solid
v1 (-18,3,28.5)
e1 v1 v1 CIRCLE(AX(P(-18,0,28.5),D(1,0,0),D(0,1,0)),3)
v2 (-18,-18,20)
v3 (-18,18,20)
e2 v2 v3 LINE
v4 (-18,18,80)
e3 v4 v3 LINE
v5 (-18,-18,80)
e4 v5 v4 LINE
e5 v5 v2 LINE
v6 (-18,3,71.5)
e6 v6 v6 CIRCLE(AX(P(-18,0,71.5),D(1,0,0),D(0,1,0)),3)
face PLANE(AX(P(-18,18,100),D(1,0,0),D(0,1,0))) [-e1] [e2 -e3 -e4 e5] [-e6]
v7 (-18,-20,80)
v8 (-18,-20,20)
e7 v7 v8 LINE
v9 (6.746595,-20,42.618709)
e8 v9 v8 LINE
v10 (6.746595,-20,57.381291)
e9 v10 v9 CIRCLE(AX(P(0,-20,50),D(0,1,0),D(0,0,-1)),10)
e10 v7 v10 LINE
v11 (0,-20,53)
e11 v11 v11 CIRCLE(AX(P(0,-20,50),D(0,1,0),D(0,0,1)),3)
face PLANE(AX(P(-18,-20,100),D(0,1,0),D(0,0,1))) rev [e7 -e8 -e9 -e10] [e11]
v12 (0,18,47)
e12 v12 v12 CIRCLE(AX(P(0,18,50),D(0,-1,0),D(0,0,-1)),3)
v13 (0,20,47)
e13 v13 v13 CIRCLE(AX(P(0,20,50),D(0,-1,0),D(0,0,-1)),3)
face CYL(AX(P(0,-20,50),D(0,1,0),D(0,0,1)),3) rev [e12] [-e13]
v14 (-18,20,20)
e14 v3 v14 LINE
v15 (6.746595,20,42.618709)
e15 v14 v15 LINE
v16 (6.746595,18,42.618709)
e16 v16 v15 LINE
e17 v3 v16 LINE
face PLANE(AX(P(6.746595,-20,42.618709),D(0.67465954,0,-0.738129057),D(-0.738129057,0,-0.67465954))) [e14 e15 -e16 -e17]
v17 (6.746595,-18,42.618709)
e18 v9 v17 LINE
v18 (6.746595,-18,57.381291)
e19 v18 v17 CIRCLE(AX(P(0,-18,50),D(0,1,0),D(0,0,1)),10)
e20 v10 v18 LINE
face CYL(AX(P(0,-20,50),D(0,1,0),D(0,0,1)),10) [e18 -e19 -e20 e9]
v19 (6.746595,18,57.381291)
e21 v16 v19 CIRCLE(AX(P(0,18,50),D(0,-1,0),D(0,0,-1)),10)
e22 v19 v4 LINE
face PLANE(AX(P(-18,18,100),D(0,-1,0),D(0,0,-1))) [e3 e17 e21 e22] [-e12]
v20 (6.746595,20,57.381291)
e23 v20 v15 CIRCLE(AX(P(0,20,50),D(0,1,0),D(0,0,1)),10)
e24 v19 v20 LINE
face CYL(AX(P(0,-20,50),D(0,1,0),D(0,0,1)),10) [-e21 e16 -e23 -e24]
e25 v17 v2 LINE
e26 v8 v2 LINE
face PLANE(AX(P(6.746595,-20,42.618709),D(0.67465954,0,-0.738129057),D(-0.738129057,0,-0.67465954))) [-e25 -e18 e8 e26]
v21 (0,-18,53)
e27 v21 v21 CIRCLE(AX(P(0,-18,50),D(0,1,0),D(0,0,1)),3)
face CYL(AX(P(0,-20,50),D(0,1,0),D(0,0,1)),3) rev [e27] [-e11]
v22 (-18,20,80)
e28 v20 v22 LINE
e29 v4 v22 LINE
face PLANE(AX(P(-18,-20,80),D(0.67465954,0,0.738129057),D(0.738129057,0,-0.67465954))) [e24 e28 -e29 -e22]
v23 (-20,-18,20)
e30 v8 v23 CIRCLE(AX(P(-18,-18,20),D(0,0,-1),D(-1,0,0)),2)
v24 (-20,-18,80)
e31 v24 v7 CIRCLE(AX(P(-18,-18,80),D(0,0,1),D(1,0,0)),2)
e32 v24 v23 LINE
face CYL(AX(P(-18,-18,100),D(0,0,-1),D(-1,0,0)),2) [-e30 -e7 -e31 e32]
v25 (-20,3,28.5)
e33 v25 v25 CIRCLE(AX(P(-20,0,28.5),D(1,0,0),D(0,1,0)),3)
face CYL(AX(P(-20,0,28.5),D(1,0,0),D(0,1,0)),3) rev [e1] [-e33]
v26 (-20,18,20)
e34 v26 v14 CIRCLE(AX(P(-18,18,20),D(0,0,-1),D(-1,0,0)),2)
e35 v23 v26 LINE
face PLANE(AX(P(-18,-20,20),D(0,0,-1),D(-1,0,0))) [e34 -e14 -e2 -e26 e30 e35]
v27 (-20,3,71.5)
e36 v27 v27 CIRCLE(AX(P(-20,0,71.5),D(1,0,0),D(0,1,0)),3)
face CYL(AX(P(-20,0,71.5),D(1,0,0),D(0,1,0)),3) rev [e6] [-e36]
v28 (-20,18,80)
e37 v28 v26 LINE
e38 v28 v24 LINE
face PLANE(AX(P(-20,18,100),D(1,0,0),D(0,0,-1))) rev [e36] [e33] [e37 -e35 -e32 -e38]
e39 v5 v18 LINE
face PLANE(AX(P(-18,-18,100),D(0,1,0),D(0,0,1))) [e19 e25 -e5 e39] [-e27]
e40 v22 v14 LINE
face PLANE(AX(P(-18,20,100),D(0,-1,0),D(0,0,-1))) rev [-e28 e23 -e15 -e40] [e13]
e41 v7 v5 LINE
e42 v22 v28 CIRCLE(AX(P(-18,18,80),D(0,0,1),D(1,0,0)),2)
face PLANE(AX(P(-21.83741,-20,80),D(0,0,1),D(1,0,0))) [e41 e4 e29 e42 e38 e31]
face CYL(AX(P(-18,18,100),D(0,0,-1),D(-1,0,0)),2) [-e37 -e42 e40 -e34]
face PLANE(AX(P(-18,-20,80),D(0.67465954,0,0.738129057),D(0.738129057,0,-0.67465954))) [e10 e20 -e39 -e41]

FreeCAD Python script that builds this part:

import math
import FreeCAD as App
import Part
import Sketcher
Q = App.Units.Quantity


def add_polygon(sketch, points):
    """Adds a closed chain of lines whose ends are joined by coincident constraints."""
    first, n = sketch.GeometryCount, len(points)
    for a, b in zip(points, points[1:] + points[:1]):
        sketch.addGeometry(Part.LineSegment(App.Vector(*a, 0), App.Vector(*b, 0)), False)
    for i in range(n):
        sketch.addConstraint(Sketcher.Constraint("Coincident", first + i, 2, first + (i + 1) % n, 1))

doc = App.newDocument("Part")
body = doc.addObject("PartDesign::Body", "Body")

sketch1 = body.newObject("Sketcher::SketchObject", "Sketch")
sketch1.AttachmentSupport = (doc.getObject("XY_Plane"), [""])
sketch1.MapMode = "FlatFace"
sketch1.addGeometry(Part.LineSegment(App.Vector(18, 20, 0), App.Vector(-18, 20, 0)), False)
sketch1.addGeometry(Part.ArcOfCircle(Part.Circle(App.Vector(-18, 18, 0), App.Vector(0, 0, 1), 2), math.radians(90), math.radians(180)), False)
sketch1.addGeometry(Part.LineSegment(App.Vector(-20, 18, 0), App.Vector(-20, -18, 0)), False)
sketch1.addGeometry(Part.ArcOfCircle(Part.Circle(App.Vector(-18, -18, 0), App.Vector(0, 0, 1), 2), math.radians(-180), math.radians(-90)), False)
sketch1.addGeometry(Part.LineSegment(App.Vector(-18, -20, 0), App.Vector(18, -20, 0)), False)
sketch1.addGeometry(Part.ArcOfCircle(Part.Circle(App.Vector(18, -18, 0), App.Vector(0, 0, 1), 2), math.radians(-90), math.radians(0)), False)
sketch1.addGeometry(Part.LineSegment(App.Vector(20, -18, 0), App.Vector(20, 18, 0)), False)
sketch1.addGeometry(Part.ArcOfCircle(Part.Circle(App.Vector(18, 18, 0), App.Vector(0, 0, 1), 2), math.radians(0), math.radians(90)), False)
add_polygon(sketch1, [(-18, -18), (-18, 18), (18, 18), (18, -18)])
sketch1.addConstraint([
    Sketcher.Constraint("Tangent", 0, 2, 1, 1),
    Sketcher.Constraint("Tangent", 1, 2, 2, 1),
    Sketcher.Constraint("Tangent", 2, 2, 3, 1),
    Sketcher.Constraint("Tangent", 3, 2, 4, 1),
    Sketcher.Constraint("Tangent", 4, 2, 5, 1),
    Sketcher.Constraint("Tangent", 5, 2, 6, 1),
    Sketcher.Constraint("Tangent", 6, 2, 7, 1),
    Sketcher.Constraint("Tangent", 7, 2, 0, 1),
    Sketcher.Constraint("Horizontal", 0),
    Sketcher.Constraint("Vertical", 2),
    Sketcher.Constraint("Horizontal", 4),
    Sketcher.Constraint("Vertical", 6),
    Sketcher.Constraint("Vertical", 8),
    Sketcher.Constraint("Horizontal", 9),
    Sketcher.Constraint("Vertical", 10),
    Sketcher.Constraint("Horizontal", 11),
    Sketcher.Constraint("Coincident", 8, 2, 1, 3),
    Sketcher.Constraint("Coincident", 9, 2, 7, 3),
    Sketcher.Constraint("Coincident", 10, 2, 5, 3),
    Sketcher.Constraint("Equal", 1, 3),
    Sketcher.Constraint("Symmetric", 1, 3, 5, 3, -1, 1),
    Sketcher.Constraint("Equal", 11, 2),
    Sketcher.Constraint("Radius", 1, Q("2 mm")),
    Sketcher.Constraint("DistanceX", 0, 2, 0, 1, Q("36 mm")),
])
pad1 = body.newObject("PartDesign::Pad", "Pad")
pad1.Profile = sketch1
pad1.Length = 100

sketch2 = body.newObject("Sketcher::SketchObject", "Sketch001")
sketch2.AttachmentSupport = (doc.getObject("XZ_Plane"), [""])
sketch2.MapMode = "FlatFace"
sketch2.AttachmentOffset = App.Placement(App.Vector(0, 0, -20), App.Rotation())
sketch2.addGeometry(Part.Circle(App.Vector(0, 50, 0), App.Vector(0, 0, 1), 3), False)
sketch2.addConstraint([
    Sketcher.Constraint("PointOnObject", 0, 3, -2),
    Sketcher.Constraint("Diameter", 0, Q("6 mm")),
    Sketcher.Constraint("DistanceY", -1, 1, 0, 3, Q("50 mm")),
])
pocket1 = body.newObject("PartDesign::Pocket", "Pocket")
pocket1.Profile = sketch2
pocket1.Type = "ThroughAll"
pocket1.Midplane = True

sketch3 = body.newObject("Sketcher::SketchObject", "Sketch002")
sketch3.AttachmentSupport = (doc.getObject("XZ_Plane"), [""])
sketch3.MapMode = "FlatFace"
sketch3.AttachmentOffset = App.Placement(App.Vector(0, 0, -20), App.Rotation())
add_polygon(sketch3, [(-32.5, -12.5), (-32.5, 112.5), (32.5, 112.5), (32.5, -12.5)])
sketch3.addGeometry(Part.LineSegment(App.Vector(-18, 20, 0), App.Vector(6.7, 42.6, 0)), False)
sketch3.addGeometry(Part.ArcOfCircle(Part.Circle(App.Vector(0, 50, 0), App.Vector(0, 0, 1), 10), math.radians(-48), math.radians(48)), False)
sketch3.addGeometry(Part.LineSegment(App.Vector(6.7, 57.4, 0), App.Vector(-18, 80, 0)), False)
sketch3.addGeometry(Part.LineSegment(App.Vector(-18, 80, 0), App.Vector(-21.8, 80, 0)), False)
sketch3.addGeometry(Part.LineSegment(App.Vector(-21.8, 80, 0), App.Vector(-21.8, 20, 0)), False)
sketch3.addGeometry(Part.LineSegment(App.Vector(-21.8, 20, 0), App.Vector(-18, 20, 0)), False)
sketch3.addConstraint([
    Sketcher.Constraint("Tangent", 4, 2, 5, 1),
    Sketcher.Constraint("Tangent", 5, 2, 6, 1),
    Sketcher.Constraint("Coincident", 6, 2, 7, 1),
    Sketcher.Constraint("Coincident", 7, 2, 8, 1),
    Sketcher.Constraint("Coincident", 8, 2, 9, 1),
    Sketcher.Constraint("Coincident", 9, 2, 4, 1),
    Sketcher.Constraint("Vertical", 0),
    Sketcher.Constraint("Horizontal", 1),
    Sketcher.Constraint("Vertical", 2),
    Sketcher.Constraint("Horizontal", 3),
    Sketcher.Constraint("Horizontal", 7),
    Sketcher.Constraint("Vertical", 8),
    Sketcher.Constraint("Horizontal", 9),
    Sketcher.Constraint("PointOnObject", 5, 3, -2),
    Sketcher.Constraint("Vertical", 4, 2, 5, 2),
    Sketcher.Constraint("Vertical", 6, 2, 9, 2),
    Sketcher.Constraint("Radius", 5, Q("10 mm")),
    Sketcher.Constraint("DistanceY", 8, 2, 8, 1, Q("60 mm")),
    Sketcher.Constraint("DistanceY", -1, 1, 5, 3, Q("50 mm")),
    Sketcher.Constraint("DistanceX", 6, 2, -1, 1, Q("18 mm")),
    Sketcher.Constraint("DistanceX", 1, 1, 1, 2, Q("64.978 mm")),
    Sketcher.Constraint("DistanceY", 0, 1, 0, 2, Q("124.978 mm")),
    Sketcher.Constraint("DistanceX", 0, 2, -1, 1, Q("32.489 mm")),
    Sketcher.Constraint("DistanceY", -1, 1, 0, 2, Q("112.489 mm")),
    Sketcher.Constraint("DistanceX", 7, 2, 7, 1, Q("3.83741 mm")),
])
pocket2 = body.newObject("PartDesign::Pocket", "Pocket001")
pocket2.Profile = sketch3
pocket2.Type = "ThroughAll"
pocket2.Midplane = True

sketch4 = body.newObject("Sketcher::SketchObject", "Sketch003")
sketch4.AttachmentSupport = (doc.getObject("YZ_Plane"), [""])
sketch4.MapMode = "FlatFace"
sketch4.AttachmentOffset = App.Placement(App.Vector(0, 0, -18), App.Rotation())
sketch4.addGeometry([
    Part.Circle(App.Vector(0, 71.5, 0), App.Vector(0, 0, 1), 3),
    Part.Circle(App.Vector(0, 28.5, 0), App.Vector(0, 0, 1), 3),
], False)
sketch4.addConstraint([
    Sketcher.Constraint("Equal", 0, 1),
    Sketcher.Constraint("PointOnObject", 0, 3, -2),
    Sketcher.Constraint("PointOnObject", 1, 3, -2),
    Sketcher.Constraint("Diameter", 0, Q("6 mm")),
    Sketcher.Constraint("DistanceY", 1, 3, 0, 3, Q("43 mm")),
    Sketcher.Constraint("DistanceY", -1, 1, 0, 3, Q("71.5 mm")),
])
pocket3 = body.newObject("PartDesign::Pocket", "Pocket002")
pocket3.Profile = sketch4
pocket3.Type = "ThroughAll"
pocket3.Midplane = True

doc.recompute()
